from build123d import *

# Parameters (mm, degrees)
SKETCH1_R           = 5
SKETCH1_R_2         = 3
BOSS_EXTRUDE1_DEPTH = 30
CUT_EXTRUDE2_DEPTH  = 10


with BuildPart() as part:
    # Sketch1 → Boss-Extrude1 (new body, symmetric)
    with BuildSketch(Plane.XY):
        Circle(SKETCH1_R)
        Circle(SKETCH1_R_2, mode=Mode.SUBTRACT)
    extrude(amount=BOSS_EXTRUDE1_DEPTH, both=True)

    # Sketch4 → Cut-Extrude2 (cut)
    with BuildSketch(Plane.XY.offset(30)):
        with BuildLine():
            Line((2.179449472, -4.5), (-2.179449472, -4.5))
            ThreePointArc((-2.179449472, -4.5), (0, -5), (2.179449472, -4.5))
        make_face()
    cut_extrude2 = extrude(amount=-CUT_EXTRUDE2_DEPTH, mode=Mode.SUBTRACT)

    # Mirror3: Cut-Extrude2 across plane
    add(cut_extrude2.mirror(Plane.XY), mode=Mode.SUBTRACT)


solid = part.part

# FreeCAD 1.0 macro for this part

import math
import FreeCAD as App
import Part
import Sketcher
from FreeCAD import Vector

doc = App.newDocument("Part")
body = doc.addObject("PartDesign::Body", "Body")

# Sketch on XY plane
sketch1 = doc.addObject("Sketcher::SketchObject", "Sketch")
body.addObject(sketch1)
sketch1.AttachmentSupport = (doc.XY_Plane, [""])
sketch1.MapMode = "FlatFace"
sketch1.addGeometry(Part.Circle(Vector(0, 0, 0), Vector(0, 0, 1), 5), False)
sketch1.addGeometry(Part.Circle(Vector(0, 0, 0), Vector(0, 0, 1), 3), False)
sketch1.addConstraint(Sketcher.Constraint("Coincident", 0, 3, -1, 1))
sketch1.addConstraint(Sketcher.Constraint("Coincident", 1, 3, -1, 1))
sketch1.addConstraint(Sketcher.Constraint("Diameter", 0, 10.0))
sketch1.addConstraint(Sketcher.Constraint("Diameter", 1, 6.0))
pad1 = doc.addObject("PartDesign::Pad", "Pad")
body.addObject(pad1)
pad1.Profile = sketch1
pad1.Length = 60
pad1.Midplane = True

# Sketch on XY plane
sketch2 = doc.addObject("Sketcher::SketchObject", "Sketch001")
body.addObject(sketch2)
sketch2.AttachmentSupport = (doc.XY_Plane, [""])
sketch2.MapMode = "FlatFace"
sketch2.AttachmentOffset = App.Placement(Vector(0, 0, 30), App.Rotation())
sketch2.addGeometry(Part.LineSegment(Vector(2.2, -4.5, 0), Vector(-2.2, -4.5, 0)), False)
sketch2.addGeometry(Part.ArcOfCircle(Part.Circle(Vector(0, 0, 0), Vector(0, 0, 1), 5), math.radians(-116), math.radians(-64)), False)
sketch2.addConstraint(Sketcher.Constraint("Coincident", 0, 1, 1, 2))
sketch2.addConstraint(Sketcher.Constraint("Coincident", 1, 1, 0, 2))
sketch2.addConstraint(Sketcher.Constraint("Horizontal", 0))
sketch2.addConstraint(Sketcher.Constraint("Coincident", 1, 3, -1, 1))
sketch2.addConstraint(Sketcher.Constraint("Radius", 1, 5.0))
sketch2.addConstraint(Sketcher.Constraint("DistanceY", 0, 1, -1, 1, 4.5))
pocket1 = doc.addObject("PartDesign::Pocket", "Pocket")
body.addObject(pocket1)
pocket1.Profile = sketch2
pocket1.Length = 10
doc.recompute()

mirrored = doc.addObject("PartDesign::Mirrored", "Mirrored")
body.addObject(mirrored)
mirrored.Originals = [pocket1]
mirrored.MirrorPlane = (doc.XY_Plane, [""])
body.Tip = mirrored

doc.recompute()
